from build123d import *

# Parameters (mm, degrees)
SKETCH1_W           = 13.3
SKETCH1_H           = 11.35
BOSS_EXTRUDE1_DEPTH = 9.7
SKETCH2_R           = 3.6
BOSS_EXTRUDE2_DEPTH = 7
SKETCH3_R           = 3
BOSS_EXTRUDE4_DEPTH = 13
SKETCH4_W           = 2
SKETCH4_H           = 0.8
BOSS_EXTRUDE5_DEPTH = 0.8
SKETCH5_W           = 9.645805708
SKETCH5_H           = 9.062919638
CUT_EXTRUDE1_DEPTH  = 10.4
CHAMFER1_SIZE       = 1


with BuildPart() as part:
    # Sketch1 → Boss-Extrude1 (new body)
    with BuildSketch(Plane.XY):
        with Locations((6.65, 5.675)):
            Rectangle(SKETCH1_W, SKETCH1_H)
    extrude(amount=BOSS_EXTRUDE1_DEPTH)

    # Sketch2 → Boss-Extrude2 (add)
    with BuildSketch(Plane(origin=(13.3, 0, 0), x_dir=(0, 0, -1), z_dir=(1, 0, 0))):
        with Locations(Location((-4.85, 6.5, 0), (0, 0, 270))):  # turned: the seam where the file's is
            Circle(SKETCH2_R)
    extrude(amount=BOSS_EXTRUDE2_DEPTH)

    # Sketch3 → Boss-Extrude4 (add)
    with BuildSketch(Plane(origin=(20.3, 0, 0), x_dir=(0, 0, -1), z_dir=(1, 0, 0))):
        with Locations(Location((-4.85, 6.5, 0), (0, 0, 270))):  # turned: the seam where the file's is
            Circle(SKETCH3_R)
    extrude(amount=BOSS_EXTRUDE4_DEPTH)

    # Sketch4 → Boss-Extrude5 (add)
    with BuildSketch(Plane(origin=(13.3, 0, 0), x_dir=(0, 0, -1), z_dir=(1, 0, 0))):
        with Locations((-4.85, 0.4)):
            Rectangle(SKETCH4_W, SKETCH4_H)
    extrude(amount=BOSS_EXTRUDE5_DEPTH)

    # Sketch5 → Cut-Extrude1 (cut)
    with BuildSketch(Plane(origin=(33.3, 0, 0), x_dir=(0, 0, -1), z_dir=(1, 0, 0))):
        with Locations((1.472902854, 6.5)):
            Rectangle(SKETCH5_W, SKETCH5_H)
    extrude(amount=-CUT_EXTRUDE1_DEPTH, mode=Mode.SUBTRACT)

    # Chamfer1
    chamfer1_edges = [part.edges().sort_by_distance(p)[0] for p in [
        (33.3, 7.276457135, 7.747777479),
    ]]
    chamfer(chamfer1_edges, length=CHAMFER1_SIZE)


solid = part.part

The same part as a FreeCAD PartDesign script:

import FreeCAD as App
import Part
import Sketcher

V = App.Vector
Q = App.Units.Quantity


def edges_at(feature, points):
    """Names of the edges that pass closest to the given points."""
    edges = feature.Shape.Edges
    near = lambda p: min(range(len(edges)), key=lambda i: edges[i].distToShape(Part.Vertex(*p))[0])
    return sorted({f"Edge{near(p) + 1}" for p in points})

doc = App.newDocument("Part")
body = doc.addObject("PartDesign::Body", "Body")

# Sketch on XY plane
sketch1 = doc.addObject("Sketcher::SketchObject", "Sketch")
body.addObject(sketch1)
sketch1.AttachmentSupport = (doc.XY_Plane, [""])
sketch1.MapMode = "FlatFace"
sketch1.addGeometry(Part.LineSegment(V(0, 11, 0), V(0, 0, 0)), False)
sketch1.addGeometry(Part.LineSegment(V(0, 0, 0), V(13, 0, 0)), False)
sketch1.addGeometry(Part.LineSegment(V(13, 0, 0), V(13, 11, 0)), False)
sketch1.addGeometry(Part.LineSegment(V(13, 11, 0), V(0, 11, 0)), False)
sketch1.addConstraint(Sketcher.Constraint("Coincident", 0, 2, 1, 1))
sketch1.addConstraint(Sketcher.Constraint("Coincident", 1, 2, 2, 1))
sketch1.addConstraint(Sketcher.Constraint("Coincident", 2, 2, 3, 1))
sketch1.addConstraint(Sketcher.Constraint("Coincident", 3, 2, 0, 1))
sketch1.addConstraint(Sketcher.Constraint("Vertical", 0))
sketch1.addConstraint(Sketcher.Constraint("Horizontal", 1))
sketch1.addConstraint(Sketcher.Constraint("Vertical", 2))
sketch1.addConstraint(Sketcher.Constraint("Horizontal", 3))
sketch1.addConstraint(Sketcher.Constraint("Coincident", 0, 2, -1, 1))
sketch1.addConstraint(Sketcher.Constraint("DistanceX", 1, 1, 1, 2, Q("13.3 mm")))
sketch1.addConstraint(Sketcher.Constraint("DistanceY", 0, 2, 0, 1, Q("11.35 mm")))
pad1 = doc.addObject("PartDesign::Pad", "Pad")
body.addObject(pad1)
pad1.Profile = sketch1
pad1.Length = 9.7

# Sketch on YZ plane
sketch2 = doc.addObject("Sketcher::SketchObject", "Sketch001")
body.addObject(sketch2)
sketch2.AttachmentSupport = (doc.YZ_Plane, [""])
sketch2.MapMode = "FlatFace"
sketch2.AttachmentOffset = App.Placement(V(0, 0, 13.3), App.Rotation())
sketch2.addGeometry(Part.Circle(V(6.5, 4.8, 0), V(0, 0, 1), 3.6), False)
sketch2.addConstraint(Sketcher.Constraint("Diameter", 0, Q("7.2 mm")))
sketch2.addConstraint(Sketcher.Constraint("DistanceX", -1, 1, 0, 3, Q("6.5 mm")))
sketch2.addConstraint(Sketcher.Constraint("DistanceY", -1, 1, 0, 3, Q("4.85 mm")))
pad2 = doc.addObject("PartDesign::Pad", "Pad001")
body.addObject(pad2)
pad2.Profile = sketch2
pad2.Length = 7

# Sketch on YZ plane
sketch3 = doc.addObject("Sketcher::SketchObject", "Sketch002")
body.addObject(sketch3)
sketch3.AttachmentSupport = (doc.YZ_Plane, [""])
sketch3.MapMode = "FlatFace"
sketch3.AttachmentOffset = App.Placement(V(0, 0, 20.3), App.Rotation())
sketch3.addGeometry(Part.Circle(V(6.5, 4.8, 0), V(0, 0, 1), 3), False)
sketch3.addConstraint(Sketcher.Constraint("Diameter", 0, Q("6 mm")))
sketch3.addConstraint(Sketcher.Constraint("DistanceX", -1, 1, 0, 3, Q("6.5 mm")))
sketch3.addConstraint(Sketcher.Constraint("DistanceY", -1, 1, 0, 3, Q("4.85 mm")))
pad3 = doc.addObject("PartDesign::Pad", "Pad002")
body.addObject(pad3)
pad3.Profile = sketch3
pad3.Length = 13

# Sketch on YZ plane
sketch4 = doc.addObject("Sketcher::SketchObject", "Sketch003")
body.addObject(sketch4)
sketch4.AttachmentSupport = (doc.YZ_Plane, [""])
sketch4.MapMode = "FlatFace"
sketch4.AttachmentOffset = App.Placement(V(0, 0, 13.3), App.Rotation())
sketch4.addGeometry(Part.LineSegment(V(0.8, 5.8, 0), V(0, 5.8, 0)), False)
sketch4.addGeometry(Part.LineSegment(V(0, 5.8, 0), V(0, 3.9, 0)), False)
sketch4.addGeometry(Part.LineSegment(V(0, 3.9, 0), V(0.8, 3.9, 0)), False)
sketch4.addGeometry(Part.LineSegment(V(0.8, 3.9, 0), V(0.8, 5.8, 0)), False)
sketch4.addConstraint(Sketcher.Constraint("Coincident", 0, 2, 1, 1))
sketch4.addConstraint(Sketcher.Constraint("Coincident", 1, 2, 2, 1))
sketch4.addConstraint(Sketcher.Constraint("Coincident", 2, 2, 3, 1))
sketch4.addConstraint(Sketcher.Constraint("Coincident", 3, 2, 0, 1))
sketch4.addConstraint(Sketcher.Constraint("Horizontal", 0))
sketch4.addConstraint(Sketcher.Constraint("Vertical", 1))
sketch4.addConstraint(Sketcher.Constraint("Horizontal", 2))
sketch4.addConstraint(Sketcher.Constraint("Vertical", 3))
sketch4.addConstraint(Sketcher.Constraint("PointOnObject", 0, 2, -2))
sketch4.addConstraint(Sketcher.Constraint("DistanceY", 1, 2, 1, 1, Q("2 mm")))
sketch4.addConstraint(Sketcher.Constraint("DistanceX", 0, 2, 0, 1, Q("0.8 mm")))
sketch4.addConstraint(Sketcher.Constraint("DistanceY", -1, 1, 0, 2, Q("5.85 mm")))
pad4 = doc.addObject("PartDesign::Pad", "Pad003")
body.addObject(pad4)
pad4.Profile = sketch4
pad4.Length = 0.8

# Sketch on YZ plane
sketch5 = doc.addObject("Sketcher::SketchObject", "Sketch004")
body.addObject(sketch5)
sketch5.AttachmentSupport = (doc.YZ_Plane, [""])
sketch5.MapMode = "FlatFace"
sketch5.AttachmentOffset = App.Placement(V(0, 0, 33.3), App.Rotation())
sketch5.addGeometry(Part.LineSegment(V(11, 3, 0), V(2, 3, 0)), False)
sketch5.addGeometry(Part.LineSegment(V(2, 3, 0), V(2, -6, 0)), False)
sketch5.addGeometry(Part.LineSegment(V(2, -6, 0), V(11, -6, 0)), False)
sketch5.addGeometry(Part.LineSegment(V(11, -6, 0), V(11, 3, 0)), False)
sketch5.addConstraint(Sketcher.Constraint("Coincident", 0, 2, 1, 1))
sketch5.addConstraint(Sketcher.Constraint("Coincident", 1, 2, 2, 1))
sketch5.addConstraint(Sketcher.Constraint("Coincident", 2, 2, 3, 1))
sketch5.addConstraint(Sketcher.Constraint("Coincident", 3, 2, 0, 1))
sketch5.addConstraint(Sketcher.Constraint("Horizontal", 0))
sketch5.addConstraint(Sketcher.Constraint("Vertical", 1))
sketch5.addConstraint(Sketcher.Constraint("Horizontal", 2))
sketch5.addConstraint(Sketcher.Constraint("Vertical", 3))
sketch5.addConstraint(Sketcher.Constraint("DistanceY", -1, 1, 0, 2, Q("3.35 mm")))
sketch5.addConstraint(Sketcher.Constraint("DistanceX", 0, 2, 0, 1, Q("9.06292 mm")))
sketch5.addConstraint(Sketcher.Constraint("DistanceY", 1, 2, 1, 1, Q("9.645806 mm")))
sketch5.addConstraint(Sketcher.Constraint("DistanceX", -1, 1, 0, 2, Q("1.96854 mm")))
pocket1 = doc.addObject("PartDesign::Pocket", "Pocket")
body.addObject(pocket1)
pocket1.Profile = sketch5
pocket1.Length = 10.4
doc.recompute()

chamfer = doc.addObject("PartDesign::Chamfer", "Chamfer")
body.addObject(chamfer)
chamfer.Base = (pocket1, edges_at(pocket1, [(33.3, 7.276, 7.748)]))
chamfer.Size = 1

doc.recompute()
